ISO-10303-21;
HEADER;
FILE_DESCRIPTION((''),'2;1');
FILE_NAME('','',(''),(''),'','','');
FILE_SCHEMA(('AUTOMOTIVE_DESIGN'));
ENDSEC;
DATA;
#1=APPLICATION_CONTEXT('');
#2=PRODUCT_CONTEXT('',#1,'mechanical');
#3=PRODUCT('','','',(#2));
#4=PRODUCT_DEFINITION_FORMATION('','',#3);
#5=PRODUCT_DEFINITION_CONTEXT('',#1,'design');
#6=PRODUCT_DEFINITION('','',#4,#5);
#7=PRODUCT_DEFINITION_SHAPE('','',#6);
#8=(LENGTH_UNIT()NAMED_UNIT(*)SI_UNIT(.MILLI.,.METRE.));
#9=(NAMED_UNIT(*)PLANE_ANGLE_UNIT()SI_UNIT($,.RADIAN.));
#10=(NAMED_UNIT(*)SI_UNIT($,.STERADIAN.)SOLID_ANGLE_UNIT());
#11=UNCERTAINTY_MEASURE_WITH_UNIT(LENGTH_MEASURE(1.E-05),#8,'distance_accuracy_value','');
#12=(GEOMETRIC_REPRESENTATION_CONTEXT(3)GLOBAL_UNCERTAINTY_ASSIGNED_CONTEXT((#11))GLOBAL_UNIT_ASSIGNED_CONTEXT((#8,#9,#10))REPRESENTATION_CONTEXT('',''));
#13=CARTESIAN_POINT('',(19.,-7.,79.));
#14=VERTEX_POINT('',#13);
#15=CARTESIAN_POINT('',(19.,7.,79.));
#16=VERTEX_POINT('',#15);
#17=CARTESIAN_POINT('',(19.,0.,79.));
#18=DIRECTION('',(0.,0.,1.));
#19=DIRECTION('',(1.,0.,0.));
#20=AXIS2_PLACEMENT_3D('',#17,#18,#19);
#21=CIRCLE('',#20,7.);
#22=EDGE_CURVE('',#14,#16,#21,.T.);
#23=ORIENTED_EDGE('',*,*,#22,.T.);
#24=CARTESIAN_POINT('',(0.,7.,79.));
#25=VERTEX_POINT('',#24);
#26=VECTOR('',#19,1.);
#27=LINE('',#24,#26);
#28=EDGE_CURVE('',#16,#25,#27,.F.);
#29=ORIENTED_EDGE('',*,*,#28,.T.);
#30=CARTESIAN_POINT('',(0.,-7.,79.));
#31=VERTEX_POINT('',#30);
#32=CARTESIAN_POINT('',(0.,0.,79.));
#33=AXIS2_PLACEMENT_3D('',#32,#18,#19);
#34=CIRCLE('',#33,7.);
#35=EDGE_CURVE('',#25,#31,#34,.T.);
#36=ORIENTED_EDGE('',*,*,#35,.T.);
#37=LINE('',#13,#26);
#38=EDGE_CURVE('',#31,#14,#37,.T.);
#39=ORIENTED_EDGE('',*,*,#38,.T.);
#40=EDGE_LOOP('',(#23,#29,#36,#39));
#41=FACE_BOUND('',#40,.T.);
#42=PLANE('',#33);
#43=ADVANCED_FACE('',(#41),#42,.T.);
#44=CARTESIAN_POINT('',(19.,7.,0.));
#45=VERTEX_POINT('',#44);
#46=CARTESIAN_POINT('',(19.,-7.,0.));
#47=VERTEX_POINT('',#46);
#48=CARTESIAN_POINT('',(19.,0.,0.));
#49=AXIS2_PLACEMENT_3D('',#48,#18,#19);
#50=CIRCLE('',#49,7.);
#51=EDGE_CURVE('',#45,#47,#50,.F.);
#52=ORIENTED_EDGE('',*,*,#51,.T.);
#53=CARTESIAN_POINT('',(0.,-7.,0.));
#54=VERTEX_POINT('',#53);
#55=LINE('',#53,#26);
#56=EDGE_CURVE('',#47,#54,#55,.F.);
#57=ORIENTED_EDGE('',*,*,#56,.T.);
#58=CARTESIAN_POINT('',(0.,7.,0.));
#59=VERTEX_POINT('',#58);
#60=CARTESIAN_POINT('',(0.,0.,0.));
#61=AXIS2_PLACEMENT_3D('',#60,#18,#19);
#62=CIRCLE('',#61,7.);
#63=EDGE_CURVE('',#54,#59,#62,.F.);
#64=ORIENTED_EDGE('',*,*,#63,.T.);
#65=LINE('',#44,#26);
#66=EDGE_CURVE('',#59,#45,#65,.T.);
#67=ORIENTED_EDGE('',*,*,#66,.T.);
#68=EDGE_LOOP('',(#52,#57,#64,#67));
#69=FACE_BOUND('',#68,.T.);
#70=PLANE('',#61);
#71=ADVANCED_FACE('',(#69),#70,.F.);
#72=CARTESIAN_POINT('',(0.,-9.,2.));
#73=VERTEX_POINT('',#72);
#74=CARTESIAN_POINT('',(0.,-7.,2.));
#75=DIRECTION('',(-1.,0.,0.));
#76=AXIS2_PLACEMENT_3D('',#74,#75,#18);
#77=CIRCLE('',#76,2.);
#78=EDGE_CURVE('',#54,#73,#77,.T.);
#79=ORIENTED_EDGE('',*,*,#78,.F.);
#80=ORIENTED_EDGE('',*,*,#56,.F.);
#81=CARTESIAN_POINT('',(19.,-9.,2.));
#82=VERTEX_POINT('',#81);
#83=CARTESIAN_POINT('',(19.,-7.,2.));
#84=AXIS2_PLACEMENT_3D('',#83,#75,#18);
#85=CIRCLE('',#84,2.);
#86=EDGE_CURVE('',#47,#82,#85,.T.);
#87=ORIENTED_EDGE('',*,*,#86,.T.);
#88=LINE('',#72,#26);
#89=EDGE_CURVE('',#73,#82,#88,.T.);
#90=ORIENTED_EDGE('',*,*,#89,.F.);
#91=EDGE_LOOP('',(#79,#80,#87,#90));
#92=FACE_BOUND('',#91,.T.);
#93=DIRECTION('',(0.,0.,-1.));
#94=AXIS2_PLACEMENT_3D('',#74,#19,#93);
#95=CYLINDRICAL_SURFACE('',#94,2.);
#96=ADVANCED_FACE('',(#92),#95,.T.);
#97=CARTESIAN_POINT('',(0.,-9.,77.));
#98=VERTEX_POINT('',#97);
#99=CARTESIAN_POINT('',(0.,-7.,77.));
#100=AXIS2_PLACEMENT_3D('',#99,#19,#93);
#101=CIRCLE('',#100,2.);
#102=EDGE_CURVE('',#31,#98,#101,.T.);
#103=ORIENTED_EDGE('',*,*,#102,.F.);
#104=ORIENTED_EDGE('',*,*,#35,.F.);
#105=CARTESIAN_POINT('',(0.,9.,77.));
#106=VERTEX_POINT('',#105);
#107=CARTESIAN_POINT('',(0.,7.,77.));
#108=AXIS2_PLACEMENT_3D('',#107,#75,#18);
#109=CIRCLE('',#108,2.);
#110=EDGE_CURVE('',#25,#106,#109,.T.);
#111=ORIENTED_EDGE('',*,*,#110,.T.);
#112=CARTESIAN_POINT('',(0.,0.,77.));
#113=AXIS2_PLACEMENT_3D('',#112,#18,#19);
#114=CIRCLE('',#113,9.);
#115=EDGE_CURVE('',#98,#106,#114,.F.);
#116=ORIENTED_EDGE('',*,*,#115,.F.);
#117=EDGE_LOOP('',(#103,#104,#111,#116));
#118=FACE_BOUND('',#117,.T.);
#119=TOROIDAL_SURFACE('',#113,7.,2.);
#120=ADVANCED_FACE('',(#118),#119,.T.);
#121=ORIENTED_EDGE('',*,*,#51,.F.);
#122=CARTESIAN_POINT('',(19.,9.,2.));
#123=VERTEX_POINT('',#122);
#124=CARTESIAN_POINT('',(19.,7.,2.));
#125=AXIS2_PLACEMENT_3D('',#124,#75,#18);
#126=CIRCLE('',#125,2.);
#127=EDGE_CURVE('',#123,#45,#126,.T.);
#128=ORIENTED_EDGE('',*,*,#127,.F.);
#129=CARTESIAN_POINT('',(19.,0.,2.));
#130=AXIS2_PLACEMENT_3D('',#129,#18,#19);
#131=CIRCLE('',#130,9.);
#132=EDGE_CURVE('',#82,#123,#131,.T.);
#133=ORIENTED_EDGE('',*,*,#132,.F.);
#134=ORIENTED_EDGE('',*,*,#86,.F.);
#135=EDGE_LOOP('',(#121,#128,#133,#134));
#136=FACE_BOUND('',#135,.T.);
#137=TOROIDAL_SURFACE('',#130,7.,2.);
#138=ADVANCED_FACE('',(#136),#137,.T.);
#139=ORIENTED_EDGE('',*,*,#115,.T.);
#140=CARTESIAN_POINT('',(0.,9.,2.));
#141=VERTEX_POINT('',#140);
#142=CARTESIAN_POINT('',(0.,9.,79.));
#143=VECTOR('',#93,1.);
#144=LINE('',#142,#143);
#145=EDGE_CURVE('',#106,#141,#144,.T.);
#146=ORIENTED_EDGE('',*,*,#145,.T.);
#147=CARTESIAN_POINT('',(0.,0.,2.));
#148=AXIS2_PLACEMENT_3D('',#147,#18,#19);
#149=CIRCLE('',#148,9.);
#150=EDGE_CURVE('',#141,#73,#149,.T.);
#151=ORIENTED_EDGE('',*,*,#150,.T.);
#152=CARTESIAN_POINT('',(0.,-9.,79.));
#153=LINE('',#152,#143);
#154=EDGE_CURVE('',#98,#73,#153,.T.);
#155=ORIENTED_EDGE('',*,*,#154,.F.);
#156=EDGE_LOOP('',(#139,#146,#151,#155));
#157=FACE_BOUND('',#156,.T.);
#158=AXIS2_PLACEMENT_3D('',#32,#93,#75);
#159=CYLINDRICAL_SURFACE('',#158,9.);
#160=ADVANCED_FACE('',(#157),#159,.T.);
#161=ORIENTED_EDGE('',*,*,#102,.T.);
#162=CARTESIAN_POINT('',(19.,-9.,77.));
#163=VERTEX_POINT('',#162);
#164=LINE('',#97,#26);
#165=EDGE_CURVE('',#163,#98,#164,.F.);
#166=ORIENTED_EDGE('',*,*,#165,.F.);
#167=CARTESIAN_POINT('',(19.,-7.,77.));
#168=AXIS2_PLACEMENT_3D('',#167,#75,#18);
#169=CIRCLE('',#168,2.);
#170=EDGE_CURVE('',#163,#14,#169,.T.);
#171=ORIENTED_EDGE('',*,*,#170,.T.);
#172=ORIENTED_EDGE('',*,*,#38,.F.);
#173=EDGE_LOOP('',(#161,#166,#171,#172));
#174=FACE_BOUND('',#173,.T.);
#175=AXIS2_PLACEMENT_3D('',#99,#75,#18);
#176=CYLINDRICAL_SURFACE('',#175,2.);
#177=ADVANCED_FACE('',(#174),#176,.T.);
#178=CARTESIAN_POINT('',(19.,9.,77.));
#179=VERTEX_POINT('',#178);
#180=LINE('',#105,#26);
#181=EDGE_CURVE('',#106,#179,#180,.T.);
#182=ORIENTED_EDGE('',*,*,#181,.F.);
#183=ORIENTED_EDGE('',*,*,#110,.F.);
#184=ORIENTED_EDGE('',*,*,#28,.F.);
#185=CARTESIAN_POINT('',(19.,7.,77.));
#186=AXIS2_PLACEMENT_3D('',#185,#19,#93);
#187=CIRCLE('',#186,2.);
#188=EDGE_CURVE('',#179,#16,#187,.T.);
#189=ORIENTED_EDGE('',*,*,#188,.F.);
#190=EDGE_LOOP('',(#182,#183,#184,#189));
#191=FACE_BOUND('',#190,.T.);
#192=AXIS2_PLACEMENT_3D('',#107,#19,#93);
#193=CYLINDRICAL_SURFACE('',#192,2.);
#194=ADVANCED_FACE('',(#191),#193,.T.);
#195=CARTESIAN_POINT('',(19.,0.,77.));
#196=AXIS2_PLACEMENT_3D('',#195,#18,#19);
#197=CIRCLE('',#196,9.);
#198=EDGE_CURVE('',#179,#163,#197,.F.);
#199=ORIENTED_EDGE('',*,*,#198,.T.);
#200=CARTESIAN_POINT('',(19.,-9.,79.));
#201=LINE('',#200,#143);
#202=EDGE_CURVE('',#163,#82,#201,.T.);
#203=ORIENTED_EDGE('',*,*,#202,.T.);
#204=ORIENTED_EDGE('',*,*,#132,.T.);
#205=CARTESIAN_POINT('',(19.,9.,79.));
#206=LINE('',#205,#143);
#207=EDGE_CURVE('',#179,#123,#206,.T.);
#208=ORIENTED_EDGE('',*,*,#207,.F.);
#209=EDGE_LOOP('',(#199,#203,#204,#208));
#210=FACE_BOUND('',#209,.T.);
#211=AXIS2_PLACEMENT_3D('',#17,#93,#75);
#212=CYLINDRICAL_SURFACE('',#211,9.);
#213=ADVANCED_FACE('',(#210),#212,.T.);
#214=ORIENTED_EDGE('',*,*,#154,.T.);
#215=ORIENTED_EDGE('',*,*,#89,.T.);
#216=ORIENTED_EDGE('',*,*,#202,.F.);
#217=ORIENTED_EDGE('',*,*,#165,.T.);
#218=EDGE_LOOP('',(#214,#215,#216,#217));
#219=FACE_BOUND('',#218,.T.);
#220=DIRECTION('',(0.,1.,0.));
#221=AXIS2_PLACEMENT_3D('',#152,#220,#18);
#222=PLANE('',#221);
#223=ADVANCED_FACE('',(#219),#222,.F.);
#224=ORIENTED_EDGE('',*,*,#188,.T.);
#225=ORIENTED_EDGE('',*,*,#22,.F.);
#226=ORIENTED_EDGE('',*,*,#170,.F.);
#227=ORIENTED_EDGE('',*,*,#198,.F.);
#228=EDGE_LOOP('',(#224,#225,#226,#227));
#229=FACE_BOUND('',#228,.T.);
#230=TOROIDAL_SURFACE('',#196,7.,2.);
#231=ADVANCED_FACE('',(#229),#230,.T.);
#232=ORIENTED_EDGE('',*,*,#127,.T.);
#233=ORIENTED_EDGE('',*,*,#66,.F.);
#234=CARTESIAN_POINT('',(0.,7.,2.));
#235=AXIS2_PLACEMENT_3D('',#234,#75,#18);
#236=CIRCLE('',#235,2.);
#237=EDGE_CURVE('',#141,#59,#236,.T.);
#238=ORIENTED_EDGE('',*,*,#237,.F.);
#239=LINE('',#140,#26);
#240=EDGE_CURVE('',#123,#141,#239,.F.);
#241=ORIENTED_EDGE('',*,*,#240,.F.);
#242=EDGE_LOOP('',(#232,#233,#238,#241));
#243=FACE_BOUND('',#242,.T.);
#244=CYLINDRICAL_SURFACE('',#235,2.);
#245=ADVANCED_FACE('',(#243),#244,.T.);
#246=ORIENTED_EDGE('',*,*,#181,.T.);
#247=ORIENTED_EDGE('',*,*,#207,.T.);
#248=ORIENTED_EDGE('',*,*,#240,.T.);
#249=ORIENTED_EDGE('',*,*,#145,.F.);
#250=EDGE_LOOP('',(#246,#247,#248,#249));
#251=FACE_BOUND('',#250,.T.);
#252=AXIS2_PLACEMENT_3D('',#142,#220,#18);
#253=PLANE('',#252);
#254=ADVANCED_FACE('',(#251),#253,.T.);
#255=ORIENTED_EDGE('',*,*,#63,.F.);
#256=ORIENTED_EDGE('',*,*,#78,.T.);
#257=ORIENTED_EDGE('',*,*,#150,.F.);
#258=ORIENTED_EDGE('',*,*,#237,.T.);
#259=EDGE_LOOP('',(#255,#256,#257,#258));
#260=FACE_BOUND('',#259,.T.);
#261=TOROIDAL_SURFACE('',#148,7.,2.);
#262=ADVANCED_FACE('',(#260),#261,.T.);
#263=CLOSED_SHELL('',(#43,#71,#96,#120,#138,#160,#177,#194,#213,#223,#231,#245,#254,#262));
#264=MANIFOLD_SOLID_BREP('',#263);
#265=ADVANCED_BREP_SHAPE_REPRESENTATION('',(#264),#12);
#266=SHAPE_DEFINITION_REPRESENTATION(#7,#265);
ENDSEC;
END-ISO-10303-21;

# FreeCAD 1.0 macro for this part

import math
import FreeCAD as App
import Part
import Sketcher

V = App.Vector
Q = App.Units.Quantity


def edges_at(feature, points):
    """Names of the edges that pass closest to the given points."""
    edges = feature.Shape.Edges
    near = lambda p: min(range(len(edges)), key=lambda i: edges[i].distToShape(Part.Vertex(*p))[0])
    return sorted({f"Edge{near(p) + 1}" for p in points})

doc = App.newDocument("Part")
body = doc.addObject("PartDesign::Body", "Body")

sketch1 = doc.addObject("Sketcher::SketchObject", "Sketch")
body.addObject(sketch1)
sketch1.AttachmentSupport = (doc.XY_Plane, [""])
sketch1.MapMode = "FlatFace"
sketch1.addGeometry(Part.ArcOfCircle(Part.Circle(V(0, 0, 0), V(0, 0, 1), 9), math.radians(90), math.radians(270)), False)
sketch1.addGeometry(Part.LineSegment(V(0, -9, 0), V(19, -9, 0)), False)
sketch1.addGeometry(Part.ArcOfCircle(Part.Circle(V(19, 0, 0), V(0, 0, 1), 9), math.radians(-90), math.radians(0)), False)
sketch1.addGeometry(Part.ArcOfCircle(Part.Circle(V(19, 0, 0), V(0, 0, 1), 9), math.radians(0), math.radians(90)), False)
sketch1.addGeometry(Part.LineSegment(V(19, 9, 0), V(0, 9, 0)), False)
sketch1.addConstraint(Sketcher.Constraint("Tangent", 0, 2, 1, 1))
sketch1.addConstraint(Sketcher.Constraint("Tangent", 1, 2, 2, 1))
sketch1.addConstraint(Sketcher.Constraint("Tangent", 2, 2, 3, 1))
sketch1.addConstraint(Sketcher.Constraint("Tangent", 3, 2, 4, 1))
sketch1.addConstraint(Sketcher.Constraint("Tangent", 4, 2, 0, 1))
sketch1.addConstraint(Sketcher.Constraint("Horizontal", 1))
sketch1.addConstraint(Sketcher.Constraint("Horizontal", 4))
sketch1.addConstraint(Sketcher.Constraint("Coincident", 0, 3, -1, 1))
sketch1.addConstraint(Sketcher.Constraint("Equal", 0, 2))
sketch1.addConstraint(Sketcher.Constraint("PointOnObject", 2, 2, -1))
sketch1.addConstraint(Sketcher.Constraint("Radius", 0, Q("9 mm")))
sketch1.addConstraint(Sketcher.Constraint("DistanceX", 1, 1, 1, 2, Q("19 mm")))
pad1 = doc.addObject("PartDesign::Pad", "Pad")
body.addObject(pad1)
pad1.Profile = sketch1
pad1.Length = 79
doc.recompute()

fillet = doc.addObject("PartDesign::Fillet", "Fillet")
body.addObject(fillet)
fillet.Base = (pad1, edges_at(pad1, [
    (9.5, 9, 79),
    (-9, 0, 79),
    (9.5, -9, 79),
    (-9, 0, 0),
    (9.5, 9, 0),
    (28, 0, 39.5),
    (9.5, -9, 0),
    (28, 0, 39.5),
]))
fillet.Radius = 2

doc.recompute()
